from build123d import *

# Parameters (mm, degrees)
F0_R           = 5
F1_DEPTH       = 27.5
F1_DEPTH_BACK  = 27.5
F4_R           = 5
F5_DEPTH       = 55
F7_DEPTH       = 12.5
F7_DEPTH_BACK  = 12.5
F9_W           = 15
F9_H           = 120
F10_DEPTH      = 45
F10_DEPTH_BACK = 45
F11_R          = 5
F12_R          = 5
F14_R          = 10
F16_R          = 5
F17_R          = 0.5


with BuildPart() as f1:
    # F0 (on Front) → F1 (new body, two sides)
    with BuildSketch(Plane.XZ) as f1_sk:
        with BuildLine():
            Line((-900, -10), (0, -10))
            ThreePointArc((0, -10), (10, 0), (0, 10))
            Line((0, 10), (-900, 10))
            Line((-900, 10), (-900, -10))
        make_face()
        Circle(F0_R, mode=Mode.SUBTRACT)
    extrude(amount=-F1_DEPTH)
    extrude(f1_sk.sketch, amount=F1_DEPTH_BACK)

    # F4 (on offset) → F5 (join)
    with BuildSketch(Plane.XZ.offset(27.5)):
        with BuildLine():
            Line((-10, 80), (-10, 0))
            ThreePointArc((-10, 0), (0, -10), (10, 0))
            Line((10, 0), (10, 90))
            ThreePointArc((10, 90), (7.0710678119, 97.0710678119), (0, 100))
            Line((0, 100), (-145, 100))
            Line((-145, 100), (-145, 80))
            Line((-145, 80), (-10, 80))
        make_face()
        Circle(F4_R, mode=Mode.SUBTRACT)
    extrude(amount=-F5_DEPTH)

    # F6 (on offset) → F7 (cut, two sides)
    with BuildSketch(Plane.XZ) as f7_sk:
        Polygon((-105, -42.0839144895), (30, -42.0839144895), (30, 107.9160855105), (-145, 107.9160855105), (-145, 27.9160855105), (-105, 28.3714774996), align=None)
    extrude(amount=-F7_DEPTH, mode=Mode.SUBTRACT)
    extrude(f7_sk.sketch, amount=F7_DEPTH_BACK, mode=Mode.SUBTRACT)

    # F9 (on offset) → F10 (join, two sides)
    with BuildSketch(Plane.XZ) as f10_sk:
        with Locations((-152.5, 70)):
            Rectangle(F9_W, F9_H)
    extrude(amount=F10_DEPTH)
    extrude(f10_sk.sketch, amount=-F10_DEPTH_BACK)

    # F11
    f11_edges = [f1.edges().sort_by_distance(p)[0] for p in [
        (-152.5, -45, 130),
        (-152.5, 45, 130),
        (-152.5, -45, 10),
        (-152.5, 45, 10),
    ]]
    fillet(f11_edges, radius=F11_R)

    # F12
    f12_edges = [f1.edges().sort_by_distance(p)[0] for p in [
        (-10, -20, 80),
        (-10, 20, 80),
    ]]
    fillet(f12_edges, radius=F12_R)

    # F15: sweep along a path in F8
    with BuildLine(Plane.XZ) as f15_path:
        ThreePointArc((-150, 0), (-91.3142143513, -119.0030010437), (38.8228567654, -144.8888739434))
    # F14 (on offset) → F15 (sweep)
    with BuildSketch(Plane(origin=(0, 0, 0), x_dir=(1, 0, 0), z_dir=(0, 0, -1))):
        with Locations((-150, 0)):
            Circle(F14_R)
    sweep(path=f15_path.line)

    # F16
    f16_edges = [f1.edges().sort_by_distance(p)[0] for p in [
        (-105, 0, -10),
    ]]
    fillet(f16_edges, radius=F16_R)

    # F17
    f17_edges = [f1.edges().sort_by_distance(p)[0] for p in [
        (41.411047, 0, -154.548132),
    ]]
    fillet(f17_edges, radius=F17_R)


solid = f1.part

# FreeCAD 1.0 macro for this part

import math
import FreeCAD as App
import Part
import Sketcher

V = App.Vector
Q = App.Units.Quantity


def edges_at(feature, points):
    """Names of the edges that pass closest to the given points."""
    edges = feature.Shape.Edges
    near = lambda p: min(range(len(edges)), key=lambda i: edges[i].distToShape(Part.Vertex(*p))[0])
    return sorted({f"Edge{near(p) + 1}" for p in points})

doc = App.newDocument("Part")
body = doc.addObject("PartDesign::Body", "Body")

# Sketch on XZ plane
sketch1 = body.newObject("Sketcher::SketchObject", "Sketch")
sketch1.AttachmentSupport = (doc.getObject("XZ_Plane"), [""])
sketch1.MapMode = "FlatFace"
sketch1.addGeometry(Part.LineSegment(V(-900, -10, 0), V(0, -10, 0)), False)
sketch1.addGeometry(Part.ArcOfCircle(Part.Circle(V(0, 0, 0), V(0, 0, 1), 10), math.radians(-90), math.radians(90)), False)
sketch1.addGeometry(Part.LineSegment(V(0, 10, 0), V(-900, 10, 0)), False)
sketch1.addGeometry(Part.LineSegment(V(-900, 10, 0), V(-900, -10, 0)), False)
sketch1.addGeometry(Part.Circle(V(0, 0, 0), V(0, 0, 1), 5), False)
sketch1.addConstraint(Sketcher.Constraint("Tangent", 0, 2, 1, 1))
sketch1.addConstraint(Sketcher.Constraint("Tangent", 1, 2, 2, 1))
sketch1.addConstraint(Sketcher.Constraint("Coincident", 2, 2, 3, 1))
sketch1.addConstraint(Sketcher.Constraint("Coincident", 3, 2, 0, 1))
sketch1.addConstraint(Sketcher.Constraint("Horizontal", 0))
sketch1.addConstraint(Sketcher.Constraint("Horizontal", 2))
sketch1.addConstraint(Sketcher.Constraint("Vertical", 3))
sketch1.addConstraint(Sketcher.Constraint("Coincident", 1, 3, -1, 1))
sketch1.addConstraint(Sketcher.Constraint("Coincident", 4, 3, -1, 1))
sketch1.addConstraint(Sketcher.Constraint("Diameter", 4, Q("10 mm")))
sketch1.addConstraint(Sketcher.Constraint("Radius", 1, Q("10 mm")))
sketch1.addConstraint(Sketcher.Constraint("DistanceX", 0, 1, 0, 2, Q("900 mm")))
pad1 = body.newObject("PartDesign::Pad", "Pad")
pad1.Profile = sketch1
pad1.Type = "TwoLengths"
pad1.Length = 27.5
pad1.Length2 = 27.5
pad1.Reversed = True

# Sketch on XZ plane
sketch2 = body.newObject("Sketcher::SketchObject", "Sketch001")
sketch2.AttachmentSupport = (doc.getObject("XZ_Plane"), [""])
sketch2.MapMode = "FlatFace"
sketch2.AttachmentOffset = App.Placement(V(0, 0, 27.5), App.Rotation())
sketch2.addGeometry(Part.LineSegment(V(-10, 80, 0), V(-10, 0, 0)), False)
sketch2.addGeometry(Part.ArcOfCircle(Part.Circle(V(0, 0, 0), V(0, 0, 1), 10), math.radians(180), math.radians(360)), False)
sketch2.addGeometry(Part.LineSegment(V(10, 0, 0), V(10, 90, 0)), False)
sketch2.addGeometry(Part.ArcOfCircle(Part.Circle(V(0, 90, 0), V(0, 0, 1), 10), math.radians(0), math.radians(90)), False)
sketch2.addGeometry(Part.LineSegment(V(0, 100, 0), V(-145, 100, 0)), False)
sketch2.addGeometry(Part.LineSegment(V(-145, 100, 0), V(-145, 80, 0)), False)
sketch2.addGeometry(Part.LineSegment(V(-145, 80, 0), V(-10, 80, 0)), False)
sketch2.addGeometry(Part.Circle(V(0, 0, 0), V(0, 0, 1), 5), False)
sketch2.addConstraint(Sketcher.Constraint("Tangent", 0, 2, 1, 1))
sketch2.addConstraint(Sketcher.Constraint("Tangent", 1, 2, 2, 1))
sketch2.addConstraint(Sketcher.Constraint("Tangent", 2, 2, 3, 1))
sketch2.addConstraint(Sketcher.Constraint("Tangent", 3, 2, 4, 1))
sketch2.addConstraint(Sketcher.Constraint("Coincident", 4, 2, 5, 1))
sketch2.addConstraint(Sketcher.Constraint("Coincident", 5, 2, 6, 1))
sketch2.addConstraint(Sketcher.Constraint("Coincident", 6, 2, 0, 1))
sketch2.addConstraint(Sketcher.Constraint("Vertical", 0))
sketch2.addConstraint(Sketcher.Constraint("Vertical", 2))
sketch2.addConstraint(Sketcher.Constraint("Horizontal", 4))
sketch2.addConstraint(Sketcher.Constraint("Vertical", 5))
sketch2.addConstraint(Sketcher.Constraint("Horizontal", 6))
sketch2.addConstraint(Sketcher.Constraint("Coincident", 1, 3, -1, 1))
sketch2.addConstraint(Sketcher.Constraint("Coincident", 7, 3, -1, 1))
sketch2.addConstraint(Sketcher.Constraint("Equal", 1, 3))
sketch2.addConstraint(Sketcher.Constraint("Diameter", 7, Q("10 mm")))
sketch2.addConstraint(Sketcher.Constraint("Radius", 1, Q("10 mm")))
sketch2.addConstraint(Sketcher.Constraint("DistanceX", 4, 2, 4, 1, Q("145 mm")))
sketch2.addConstraint(Sketcher.Constraint("DistanceY", 0, 2, 0, 1, Q("80 mm")))
sketch2.addConstraint(Sketcher.Constraint("DistanceY", 2, 1, 2, 2, Q("90 mm")))
pad2 = body.newObject("PartDesign::Pad", "Pad001")
pad2.Profile = sketch2
pad2.Length = 55
pad2.Reversed = True

# Sketch on XZ plane
sketch3 = body.newObject("Sketcher::SketchObject", "Sketch002")
sketch3.AttachmentSupport = (doc.getObject("XZ_Plane"), [""])
sketch3.MapMode = "FlatFace"
sketch3.addGeometry(Part.LineSegment(V(-105, -42.083914, 0), V(30, -42.083914, 0)), False)
sketch3.addGeometry(Part.LineSegment(V(30, -42.083914, 0), V(30, 107.916086, 0)), False)
sketch3.addGeometry(Part.LineSegment(V(30, 107.916086, 0), V(-145, 107.916086, 0)), False)
sketch3.addGeometry(Part.LineSegment(V(-145, 107.916086, 0), V(-145, 27.916086, 0)), False)
sketch3.addGeometry(Part.LineSegment(V(-145, 27.916086, 0), V(-105, 28.371478, 0)), False)
sketch3.addGeometry(Part.LineSegment(V(-105, 28.371478, 0), V(-105, -42.083914, 0)), False)
sketch3.addConstraint(Sketcher.Constraint("Coincident", 0, 2, 1, 1))
sketch3.addConstraint(Sketcher.Constraint("Coincident", 1, 2, 2, 1))
sketch3.addConstraint(Sketcher.Constraint("Coincident", 2, 2, 3, 1))
sketch3.addConstraint(Sketcher.Constraint("Coincident", 3, 2, 4, 1))
sketch3.addConstraint(Sketcher.Constraint("Coincident", 4, 2, 5, 1))
sketch3.addConstraint(Sketcher.Constraint("Coincident", 5, 2, 0, 1))
sketch3.addConstraint(Sketcher.Constraint("Horizontal", 0))
sketch3.addConstraint(Sketcher.Constraint("Vertical", 1))
sketch3.addConstraint(Sketcher.Constraint("Horizontal", 2))
sketch3.addConstraint(Sketcher.Constraint("Vertical", 3))
sketch3.addConstraint(Sketcher.Constraint("Vertical", 5))
sketch3.addConstraint(Sketcher.Constraint("DistanceX", 0, 1, 0, 2, Q("135 mm")))
sketch3.addConstraint(Sketcher.Constraint("DistanceX", 2, 2, 2, 1, Q("175 mm")))
sketch3.addConstraint(Sketcher.Constraint("DistanceY", 1, 1, 1, 2, Q("150 mm")))
sketch3.addConstraint(Sketcher.Constraint("DistanceY", 3, 2, 3, 1, Q("80 mm")))
sketch3.addConstraint(Sketcher.Constraint("DistanceX", -1, 1, 0, 2, Q("30 mm")))
sketch3.addConstraint(Sketcher.Constraint("DistanceY", 5, 2, 5, 1, Q("70.455392 mm")))
sketch3.addConstraint(Sketcher.Constraint("DistanceY", 0, 2, -1, 1, Q("42.083914 mm")))
pocket1 = body.newObject("PartDesign::Pocket", "Pocket")
pocket1.Profile = sketch3
pocket1.Type = "TwoLengths"
pocket1.Length = 12.5
pocket1.Length2 = 12.5

# Sketch on XZ plane
sketch4 = body.newObject("Sketcher::SketchObject", "Sketch003")
sketch4.AttachmentSupport = (doc.getObject("XZ_Plane"), [""])
sketch4.MapMode = "FlatFace"
sketch4.addGeometry(Part.LineSegment(V(-160, 130, 0), V(-160, 10, 0)), False)
sketch4.addGeometry(Part.LineSegment(V(-160, 10, 0), V(-145, 10, 0)), False)
sketch4.addGeometry(Part.LineSegment(V(-145, 10, 0), V(-145, 130, 0)), False)
sketch4.addGeometry(Part.LineSegment(V(-145, 130, 0), V(-160, 130, 0)), False)
sketch4.addConstraint(Sketcher.Constraint("Coincident", 0, 2, 1, 1))
sketch4.addConstraint(Sketcher.Constraint("Coincident", 1, 2, 2, 1))
sketch4.addConstraint(Sketcher.Constraint("Coincident", 2, 2, 3, 1))
sketch4.addConstraint(Sketcher.Constraint("Coincident", 3, 2, 0, 1))
sketch4.addConstraint(Sketcher.Constraint("Vertical", 0))
sketch4.addConstraint(Sketcher.Constraint("Horizontal", 1))
sketch4.addConstraint(Sketcher.Constraint("Vertical", 2))
sketch4.addConstraint(Sketcher.Constraint("Horizontal", 3))
sketch4.addConstraint(Sketcher.Constraint("DistanceX", 1, 1, 1, 2, Q("15 mm")))
sketch4.addConstraint(Sketcher.Constraint("DistanceY", 0, 2, 0, 1, Q("120 mm")))
sketch4.addConstraint(Sketcher.Constraint("DistanceX", 0, 2, -1, 1, Q("160 mm")))
sketch4.addConstraint(Sketcher.Constraint("DistanceY", -1, 1, 0, 2, Q("10 mm")))
pad3 = body.newObject("PartDesign::Pad", "Pad002")
pad3.Profile = sketch4
pad3.Type = "TwoLengths"
pad3.Length = 45
pad3.Length2 = 45
doc.recompute()

fillet = body.newObject("PartDesign::Fillet", "Fillet")
fillet.Base = (pad3, edges_at(pad3, [
    (-152.5, -45, 130),
    (-152.5, 45, 130),
    (-152.5, -45, 10),
    (-152.5, 45, 10),
]))
fillet.Radius = 5
doc.recompute()

fillet2 = body.newObject("PartDesign::Fillet", "Fillet001")
fillet2.Base = (fillet, edges_at(fillet, [(-10, -20, 80), (-10, 20, 80)]))
fillet2.Radius = 5

# Sketch on XY plane
sketch5 = body.newObject("Sketcher::SketchObject", "Sketch004")
sketch5.AttachmentSupport = (doc.getObject("XY_Plane"), [""])
sketch5.MapMode = "FlatFace"
sketch5.addGeometry(Part.Circle(V(-150, 0, 0), V(0, 0, 1), 10), False)
sketch5.addConstraint(Sketcher.Constraint("PointOnObject", 0, 3, -1))
sketch5.addConstraint(Sketcher.Constraint("Diameter", 0, Q("20 mm")))
sketch5.addConstraint(Sketcher.Constraint("DistanceX", 0, 3, -1, 1, Q("150 mm")))

# Sketch on XZ plane
sketch6 = body.newObject("Sketcher::SketchObject", "Sketch005")
sketch6.AttachmentSupport = (doc.getObject("XZ_Plane"), [""])
sketch6.MapMode = "FlatFace"
sketch6.addGeometry(Part.ArcOfCircle(Part.Circle(V(0, 0, 0), V(0, 0, 1), 150), math.radians(180), math.radians(285)), False)
sketch6.addConstraint(Sketcher.Constraint("Coincident", 0, 3, -1, 1))
sketch6.addConstraint(Sketcher.Constraint("PointOnObject", 0, 1, -1))
sketch6.addConstraint(Sketcher.Constraint("Radius", 0, Q("150 mm")))
sketch6.addConstraint(Sketcher.Constraint("DistanceX", -1, 1, 0, 2, Q("38.822857 mm")))
doc.recompute()

additivepipe = body.newObject("PartDesign::AdditivePipe", "AdditivePipe")
additivepipe.Profile = sketch5
additivepipe.Spine = (sketch6, ["Edge1"])
doc.recompute()

fillet3 = body.newObject("PartDesign::Fillet", "Fillet002")
fillet3.Base = (additivepipe, edges_at(additivepipe, [(-105, 0, -10)]))
fillet3.Radius = 5
doc.recompute()

fillet4 = body.newObject("PartDesign::Fillet", "Fillet003")
fillet4.Base = (fillet3, edges_at(fillet3, [(41.411, 0, -154.548)]))
fillet4.Radius = 0.5

doc.recompute()
